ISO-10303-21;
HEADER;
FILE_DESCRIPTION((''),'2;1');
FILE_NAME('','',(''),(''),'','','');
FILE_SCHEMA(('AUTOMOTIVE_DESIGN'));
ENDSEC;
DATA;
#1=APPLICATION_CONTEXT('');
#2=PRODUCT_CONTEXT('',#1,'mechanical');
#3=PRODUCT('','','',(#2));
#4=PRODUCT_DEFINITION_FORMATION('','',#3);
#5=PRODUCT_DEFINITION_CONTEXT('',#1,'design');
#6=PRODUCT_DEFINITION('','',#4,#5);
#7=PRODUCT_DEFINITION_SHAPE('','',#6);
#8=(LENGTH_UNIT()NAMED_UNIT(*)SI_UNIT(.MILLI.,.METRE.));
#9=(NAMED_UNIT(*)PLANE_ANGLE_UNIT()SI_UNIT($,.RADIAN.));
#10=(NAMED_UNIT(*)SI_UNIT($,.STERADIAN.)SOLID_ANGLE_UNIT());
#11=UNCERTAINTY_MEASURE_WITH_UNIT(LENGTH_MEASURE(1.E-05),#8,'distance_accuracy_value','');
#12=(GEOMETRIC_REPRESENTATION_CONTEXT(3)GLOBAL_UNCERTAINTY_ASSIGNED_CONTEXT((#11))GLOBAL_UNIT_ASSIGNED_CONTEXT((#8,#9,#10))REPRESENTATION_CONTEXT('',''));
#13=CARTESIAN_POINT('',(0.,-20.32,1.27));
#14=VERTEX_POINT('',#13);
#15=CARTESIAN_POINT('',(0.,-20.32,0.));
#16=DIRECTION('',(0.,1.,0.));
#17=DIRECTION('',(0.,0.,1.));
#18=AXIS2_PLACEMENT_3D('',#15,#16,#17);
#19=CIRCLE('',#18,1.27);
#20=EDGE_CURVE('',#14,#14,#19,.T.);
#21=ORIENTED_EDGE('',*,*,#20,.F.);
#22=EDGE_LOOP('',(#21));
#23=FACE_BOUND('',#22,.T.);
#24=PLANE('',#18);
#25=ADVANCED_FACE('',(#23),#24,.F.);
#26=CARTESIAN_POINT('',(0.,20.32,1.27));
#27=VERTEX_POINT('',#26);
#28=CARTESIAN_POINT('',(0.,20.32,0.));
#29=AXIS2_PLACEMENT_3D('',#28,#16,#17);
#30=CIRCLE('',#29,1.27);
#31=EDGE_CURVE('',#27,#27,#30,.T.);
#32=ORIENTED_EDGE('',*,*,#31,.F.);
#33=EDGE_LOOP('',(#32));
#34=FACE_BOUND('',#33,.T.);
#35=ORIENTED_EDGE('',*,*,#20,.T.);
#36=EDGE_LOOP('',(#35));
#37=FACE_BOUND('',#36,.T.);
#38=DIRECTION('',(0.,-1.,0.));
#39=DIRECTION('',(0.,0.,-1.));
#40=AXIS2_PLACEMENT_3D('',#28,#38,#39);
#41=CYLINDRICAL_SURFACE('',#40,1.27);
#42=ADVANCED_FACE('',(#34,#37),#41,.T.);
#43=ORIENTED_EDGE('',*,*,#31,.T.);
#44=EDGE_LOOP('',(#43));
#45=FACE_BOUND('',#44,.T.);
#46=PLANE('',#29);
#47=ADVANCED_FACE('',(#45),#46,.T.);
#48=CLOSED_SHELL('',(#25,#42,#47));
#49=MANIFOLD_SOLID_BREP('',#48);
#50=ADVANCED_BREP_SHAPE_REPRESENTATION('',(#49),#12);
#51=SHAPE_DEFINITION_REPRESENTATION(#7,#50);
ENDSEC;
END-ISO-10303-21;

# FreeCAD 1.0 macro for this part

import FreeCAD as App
import Part
import Sketcher

V = App.Vector
Q = App.Units.Quantity

doc = App.newDocument("Part")
body = doc.addObject("PartDesign::Body", "Body")

sketch1 = doc.addObject("Sketcher::SketchObject", "Sketch")
body.addObject(sketch1)
sketch1.AttachmentSupport = (doc.XZ_Plane, [""])
sketch1.MapMode = "FlatFace"
sketch1.addGeometry(Part.Circle(V(0, 0, 0), V(0, 0, 1), 1.27), False)
sketch1.addConstraint(Sketcher.Constraint("Coincident", 0, 3, -1, 1))
sketch1.addConstraint(Sketcher.Constraint("Diameter", 0, Q("0.1 in")))
pad1 = doc.addObject("PartDesign::Pad", "Pad")
body.addObject(pad1)
pad1.Profile = sketch1
pad1.Length = Q("1.6 in")
pad1.Midplane = True

doc.recompute()
